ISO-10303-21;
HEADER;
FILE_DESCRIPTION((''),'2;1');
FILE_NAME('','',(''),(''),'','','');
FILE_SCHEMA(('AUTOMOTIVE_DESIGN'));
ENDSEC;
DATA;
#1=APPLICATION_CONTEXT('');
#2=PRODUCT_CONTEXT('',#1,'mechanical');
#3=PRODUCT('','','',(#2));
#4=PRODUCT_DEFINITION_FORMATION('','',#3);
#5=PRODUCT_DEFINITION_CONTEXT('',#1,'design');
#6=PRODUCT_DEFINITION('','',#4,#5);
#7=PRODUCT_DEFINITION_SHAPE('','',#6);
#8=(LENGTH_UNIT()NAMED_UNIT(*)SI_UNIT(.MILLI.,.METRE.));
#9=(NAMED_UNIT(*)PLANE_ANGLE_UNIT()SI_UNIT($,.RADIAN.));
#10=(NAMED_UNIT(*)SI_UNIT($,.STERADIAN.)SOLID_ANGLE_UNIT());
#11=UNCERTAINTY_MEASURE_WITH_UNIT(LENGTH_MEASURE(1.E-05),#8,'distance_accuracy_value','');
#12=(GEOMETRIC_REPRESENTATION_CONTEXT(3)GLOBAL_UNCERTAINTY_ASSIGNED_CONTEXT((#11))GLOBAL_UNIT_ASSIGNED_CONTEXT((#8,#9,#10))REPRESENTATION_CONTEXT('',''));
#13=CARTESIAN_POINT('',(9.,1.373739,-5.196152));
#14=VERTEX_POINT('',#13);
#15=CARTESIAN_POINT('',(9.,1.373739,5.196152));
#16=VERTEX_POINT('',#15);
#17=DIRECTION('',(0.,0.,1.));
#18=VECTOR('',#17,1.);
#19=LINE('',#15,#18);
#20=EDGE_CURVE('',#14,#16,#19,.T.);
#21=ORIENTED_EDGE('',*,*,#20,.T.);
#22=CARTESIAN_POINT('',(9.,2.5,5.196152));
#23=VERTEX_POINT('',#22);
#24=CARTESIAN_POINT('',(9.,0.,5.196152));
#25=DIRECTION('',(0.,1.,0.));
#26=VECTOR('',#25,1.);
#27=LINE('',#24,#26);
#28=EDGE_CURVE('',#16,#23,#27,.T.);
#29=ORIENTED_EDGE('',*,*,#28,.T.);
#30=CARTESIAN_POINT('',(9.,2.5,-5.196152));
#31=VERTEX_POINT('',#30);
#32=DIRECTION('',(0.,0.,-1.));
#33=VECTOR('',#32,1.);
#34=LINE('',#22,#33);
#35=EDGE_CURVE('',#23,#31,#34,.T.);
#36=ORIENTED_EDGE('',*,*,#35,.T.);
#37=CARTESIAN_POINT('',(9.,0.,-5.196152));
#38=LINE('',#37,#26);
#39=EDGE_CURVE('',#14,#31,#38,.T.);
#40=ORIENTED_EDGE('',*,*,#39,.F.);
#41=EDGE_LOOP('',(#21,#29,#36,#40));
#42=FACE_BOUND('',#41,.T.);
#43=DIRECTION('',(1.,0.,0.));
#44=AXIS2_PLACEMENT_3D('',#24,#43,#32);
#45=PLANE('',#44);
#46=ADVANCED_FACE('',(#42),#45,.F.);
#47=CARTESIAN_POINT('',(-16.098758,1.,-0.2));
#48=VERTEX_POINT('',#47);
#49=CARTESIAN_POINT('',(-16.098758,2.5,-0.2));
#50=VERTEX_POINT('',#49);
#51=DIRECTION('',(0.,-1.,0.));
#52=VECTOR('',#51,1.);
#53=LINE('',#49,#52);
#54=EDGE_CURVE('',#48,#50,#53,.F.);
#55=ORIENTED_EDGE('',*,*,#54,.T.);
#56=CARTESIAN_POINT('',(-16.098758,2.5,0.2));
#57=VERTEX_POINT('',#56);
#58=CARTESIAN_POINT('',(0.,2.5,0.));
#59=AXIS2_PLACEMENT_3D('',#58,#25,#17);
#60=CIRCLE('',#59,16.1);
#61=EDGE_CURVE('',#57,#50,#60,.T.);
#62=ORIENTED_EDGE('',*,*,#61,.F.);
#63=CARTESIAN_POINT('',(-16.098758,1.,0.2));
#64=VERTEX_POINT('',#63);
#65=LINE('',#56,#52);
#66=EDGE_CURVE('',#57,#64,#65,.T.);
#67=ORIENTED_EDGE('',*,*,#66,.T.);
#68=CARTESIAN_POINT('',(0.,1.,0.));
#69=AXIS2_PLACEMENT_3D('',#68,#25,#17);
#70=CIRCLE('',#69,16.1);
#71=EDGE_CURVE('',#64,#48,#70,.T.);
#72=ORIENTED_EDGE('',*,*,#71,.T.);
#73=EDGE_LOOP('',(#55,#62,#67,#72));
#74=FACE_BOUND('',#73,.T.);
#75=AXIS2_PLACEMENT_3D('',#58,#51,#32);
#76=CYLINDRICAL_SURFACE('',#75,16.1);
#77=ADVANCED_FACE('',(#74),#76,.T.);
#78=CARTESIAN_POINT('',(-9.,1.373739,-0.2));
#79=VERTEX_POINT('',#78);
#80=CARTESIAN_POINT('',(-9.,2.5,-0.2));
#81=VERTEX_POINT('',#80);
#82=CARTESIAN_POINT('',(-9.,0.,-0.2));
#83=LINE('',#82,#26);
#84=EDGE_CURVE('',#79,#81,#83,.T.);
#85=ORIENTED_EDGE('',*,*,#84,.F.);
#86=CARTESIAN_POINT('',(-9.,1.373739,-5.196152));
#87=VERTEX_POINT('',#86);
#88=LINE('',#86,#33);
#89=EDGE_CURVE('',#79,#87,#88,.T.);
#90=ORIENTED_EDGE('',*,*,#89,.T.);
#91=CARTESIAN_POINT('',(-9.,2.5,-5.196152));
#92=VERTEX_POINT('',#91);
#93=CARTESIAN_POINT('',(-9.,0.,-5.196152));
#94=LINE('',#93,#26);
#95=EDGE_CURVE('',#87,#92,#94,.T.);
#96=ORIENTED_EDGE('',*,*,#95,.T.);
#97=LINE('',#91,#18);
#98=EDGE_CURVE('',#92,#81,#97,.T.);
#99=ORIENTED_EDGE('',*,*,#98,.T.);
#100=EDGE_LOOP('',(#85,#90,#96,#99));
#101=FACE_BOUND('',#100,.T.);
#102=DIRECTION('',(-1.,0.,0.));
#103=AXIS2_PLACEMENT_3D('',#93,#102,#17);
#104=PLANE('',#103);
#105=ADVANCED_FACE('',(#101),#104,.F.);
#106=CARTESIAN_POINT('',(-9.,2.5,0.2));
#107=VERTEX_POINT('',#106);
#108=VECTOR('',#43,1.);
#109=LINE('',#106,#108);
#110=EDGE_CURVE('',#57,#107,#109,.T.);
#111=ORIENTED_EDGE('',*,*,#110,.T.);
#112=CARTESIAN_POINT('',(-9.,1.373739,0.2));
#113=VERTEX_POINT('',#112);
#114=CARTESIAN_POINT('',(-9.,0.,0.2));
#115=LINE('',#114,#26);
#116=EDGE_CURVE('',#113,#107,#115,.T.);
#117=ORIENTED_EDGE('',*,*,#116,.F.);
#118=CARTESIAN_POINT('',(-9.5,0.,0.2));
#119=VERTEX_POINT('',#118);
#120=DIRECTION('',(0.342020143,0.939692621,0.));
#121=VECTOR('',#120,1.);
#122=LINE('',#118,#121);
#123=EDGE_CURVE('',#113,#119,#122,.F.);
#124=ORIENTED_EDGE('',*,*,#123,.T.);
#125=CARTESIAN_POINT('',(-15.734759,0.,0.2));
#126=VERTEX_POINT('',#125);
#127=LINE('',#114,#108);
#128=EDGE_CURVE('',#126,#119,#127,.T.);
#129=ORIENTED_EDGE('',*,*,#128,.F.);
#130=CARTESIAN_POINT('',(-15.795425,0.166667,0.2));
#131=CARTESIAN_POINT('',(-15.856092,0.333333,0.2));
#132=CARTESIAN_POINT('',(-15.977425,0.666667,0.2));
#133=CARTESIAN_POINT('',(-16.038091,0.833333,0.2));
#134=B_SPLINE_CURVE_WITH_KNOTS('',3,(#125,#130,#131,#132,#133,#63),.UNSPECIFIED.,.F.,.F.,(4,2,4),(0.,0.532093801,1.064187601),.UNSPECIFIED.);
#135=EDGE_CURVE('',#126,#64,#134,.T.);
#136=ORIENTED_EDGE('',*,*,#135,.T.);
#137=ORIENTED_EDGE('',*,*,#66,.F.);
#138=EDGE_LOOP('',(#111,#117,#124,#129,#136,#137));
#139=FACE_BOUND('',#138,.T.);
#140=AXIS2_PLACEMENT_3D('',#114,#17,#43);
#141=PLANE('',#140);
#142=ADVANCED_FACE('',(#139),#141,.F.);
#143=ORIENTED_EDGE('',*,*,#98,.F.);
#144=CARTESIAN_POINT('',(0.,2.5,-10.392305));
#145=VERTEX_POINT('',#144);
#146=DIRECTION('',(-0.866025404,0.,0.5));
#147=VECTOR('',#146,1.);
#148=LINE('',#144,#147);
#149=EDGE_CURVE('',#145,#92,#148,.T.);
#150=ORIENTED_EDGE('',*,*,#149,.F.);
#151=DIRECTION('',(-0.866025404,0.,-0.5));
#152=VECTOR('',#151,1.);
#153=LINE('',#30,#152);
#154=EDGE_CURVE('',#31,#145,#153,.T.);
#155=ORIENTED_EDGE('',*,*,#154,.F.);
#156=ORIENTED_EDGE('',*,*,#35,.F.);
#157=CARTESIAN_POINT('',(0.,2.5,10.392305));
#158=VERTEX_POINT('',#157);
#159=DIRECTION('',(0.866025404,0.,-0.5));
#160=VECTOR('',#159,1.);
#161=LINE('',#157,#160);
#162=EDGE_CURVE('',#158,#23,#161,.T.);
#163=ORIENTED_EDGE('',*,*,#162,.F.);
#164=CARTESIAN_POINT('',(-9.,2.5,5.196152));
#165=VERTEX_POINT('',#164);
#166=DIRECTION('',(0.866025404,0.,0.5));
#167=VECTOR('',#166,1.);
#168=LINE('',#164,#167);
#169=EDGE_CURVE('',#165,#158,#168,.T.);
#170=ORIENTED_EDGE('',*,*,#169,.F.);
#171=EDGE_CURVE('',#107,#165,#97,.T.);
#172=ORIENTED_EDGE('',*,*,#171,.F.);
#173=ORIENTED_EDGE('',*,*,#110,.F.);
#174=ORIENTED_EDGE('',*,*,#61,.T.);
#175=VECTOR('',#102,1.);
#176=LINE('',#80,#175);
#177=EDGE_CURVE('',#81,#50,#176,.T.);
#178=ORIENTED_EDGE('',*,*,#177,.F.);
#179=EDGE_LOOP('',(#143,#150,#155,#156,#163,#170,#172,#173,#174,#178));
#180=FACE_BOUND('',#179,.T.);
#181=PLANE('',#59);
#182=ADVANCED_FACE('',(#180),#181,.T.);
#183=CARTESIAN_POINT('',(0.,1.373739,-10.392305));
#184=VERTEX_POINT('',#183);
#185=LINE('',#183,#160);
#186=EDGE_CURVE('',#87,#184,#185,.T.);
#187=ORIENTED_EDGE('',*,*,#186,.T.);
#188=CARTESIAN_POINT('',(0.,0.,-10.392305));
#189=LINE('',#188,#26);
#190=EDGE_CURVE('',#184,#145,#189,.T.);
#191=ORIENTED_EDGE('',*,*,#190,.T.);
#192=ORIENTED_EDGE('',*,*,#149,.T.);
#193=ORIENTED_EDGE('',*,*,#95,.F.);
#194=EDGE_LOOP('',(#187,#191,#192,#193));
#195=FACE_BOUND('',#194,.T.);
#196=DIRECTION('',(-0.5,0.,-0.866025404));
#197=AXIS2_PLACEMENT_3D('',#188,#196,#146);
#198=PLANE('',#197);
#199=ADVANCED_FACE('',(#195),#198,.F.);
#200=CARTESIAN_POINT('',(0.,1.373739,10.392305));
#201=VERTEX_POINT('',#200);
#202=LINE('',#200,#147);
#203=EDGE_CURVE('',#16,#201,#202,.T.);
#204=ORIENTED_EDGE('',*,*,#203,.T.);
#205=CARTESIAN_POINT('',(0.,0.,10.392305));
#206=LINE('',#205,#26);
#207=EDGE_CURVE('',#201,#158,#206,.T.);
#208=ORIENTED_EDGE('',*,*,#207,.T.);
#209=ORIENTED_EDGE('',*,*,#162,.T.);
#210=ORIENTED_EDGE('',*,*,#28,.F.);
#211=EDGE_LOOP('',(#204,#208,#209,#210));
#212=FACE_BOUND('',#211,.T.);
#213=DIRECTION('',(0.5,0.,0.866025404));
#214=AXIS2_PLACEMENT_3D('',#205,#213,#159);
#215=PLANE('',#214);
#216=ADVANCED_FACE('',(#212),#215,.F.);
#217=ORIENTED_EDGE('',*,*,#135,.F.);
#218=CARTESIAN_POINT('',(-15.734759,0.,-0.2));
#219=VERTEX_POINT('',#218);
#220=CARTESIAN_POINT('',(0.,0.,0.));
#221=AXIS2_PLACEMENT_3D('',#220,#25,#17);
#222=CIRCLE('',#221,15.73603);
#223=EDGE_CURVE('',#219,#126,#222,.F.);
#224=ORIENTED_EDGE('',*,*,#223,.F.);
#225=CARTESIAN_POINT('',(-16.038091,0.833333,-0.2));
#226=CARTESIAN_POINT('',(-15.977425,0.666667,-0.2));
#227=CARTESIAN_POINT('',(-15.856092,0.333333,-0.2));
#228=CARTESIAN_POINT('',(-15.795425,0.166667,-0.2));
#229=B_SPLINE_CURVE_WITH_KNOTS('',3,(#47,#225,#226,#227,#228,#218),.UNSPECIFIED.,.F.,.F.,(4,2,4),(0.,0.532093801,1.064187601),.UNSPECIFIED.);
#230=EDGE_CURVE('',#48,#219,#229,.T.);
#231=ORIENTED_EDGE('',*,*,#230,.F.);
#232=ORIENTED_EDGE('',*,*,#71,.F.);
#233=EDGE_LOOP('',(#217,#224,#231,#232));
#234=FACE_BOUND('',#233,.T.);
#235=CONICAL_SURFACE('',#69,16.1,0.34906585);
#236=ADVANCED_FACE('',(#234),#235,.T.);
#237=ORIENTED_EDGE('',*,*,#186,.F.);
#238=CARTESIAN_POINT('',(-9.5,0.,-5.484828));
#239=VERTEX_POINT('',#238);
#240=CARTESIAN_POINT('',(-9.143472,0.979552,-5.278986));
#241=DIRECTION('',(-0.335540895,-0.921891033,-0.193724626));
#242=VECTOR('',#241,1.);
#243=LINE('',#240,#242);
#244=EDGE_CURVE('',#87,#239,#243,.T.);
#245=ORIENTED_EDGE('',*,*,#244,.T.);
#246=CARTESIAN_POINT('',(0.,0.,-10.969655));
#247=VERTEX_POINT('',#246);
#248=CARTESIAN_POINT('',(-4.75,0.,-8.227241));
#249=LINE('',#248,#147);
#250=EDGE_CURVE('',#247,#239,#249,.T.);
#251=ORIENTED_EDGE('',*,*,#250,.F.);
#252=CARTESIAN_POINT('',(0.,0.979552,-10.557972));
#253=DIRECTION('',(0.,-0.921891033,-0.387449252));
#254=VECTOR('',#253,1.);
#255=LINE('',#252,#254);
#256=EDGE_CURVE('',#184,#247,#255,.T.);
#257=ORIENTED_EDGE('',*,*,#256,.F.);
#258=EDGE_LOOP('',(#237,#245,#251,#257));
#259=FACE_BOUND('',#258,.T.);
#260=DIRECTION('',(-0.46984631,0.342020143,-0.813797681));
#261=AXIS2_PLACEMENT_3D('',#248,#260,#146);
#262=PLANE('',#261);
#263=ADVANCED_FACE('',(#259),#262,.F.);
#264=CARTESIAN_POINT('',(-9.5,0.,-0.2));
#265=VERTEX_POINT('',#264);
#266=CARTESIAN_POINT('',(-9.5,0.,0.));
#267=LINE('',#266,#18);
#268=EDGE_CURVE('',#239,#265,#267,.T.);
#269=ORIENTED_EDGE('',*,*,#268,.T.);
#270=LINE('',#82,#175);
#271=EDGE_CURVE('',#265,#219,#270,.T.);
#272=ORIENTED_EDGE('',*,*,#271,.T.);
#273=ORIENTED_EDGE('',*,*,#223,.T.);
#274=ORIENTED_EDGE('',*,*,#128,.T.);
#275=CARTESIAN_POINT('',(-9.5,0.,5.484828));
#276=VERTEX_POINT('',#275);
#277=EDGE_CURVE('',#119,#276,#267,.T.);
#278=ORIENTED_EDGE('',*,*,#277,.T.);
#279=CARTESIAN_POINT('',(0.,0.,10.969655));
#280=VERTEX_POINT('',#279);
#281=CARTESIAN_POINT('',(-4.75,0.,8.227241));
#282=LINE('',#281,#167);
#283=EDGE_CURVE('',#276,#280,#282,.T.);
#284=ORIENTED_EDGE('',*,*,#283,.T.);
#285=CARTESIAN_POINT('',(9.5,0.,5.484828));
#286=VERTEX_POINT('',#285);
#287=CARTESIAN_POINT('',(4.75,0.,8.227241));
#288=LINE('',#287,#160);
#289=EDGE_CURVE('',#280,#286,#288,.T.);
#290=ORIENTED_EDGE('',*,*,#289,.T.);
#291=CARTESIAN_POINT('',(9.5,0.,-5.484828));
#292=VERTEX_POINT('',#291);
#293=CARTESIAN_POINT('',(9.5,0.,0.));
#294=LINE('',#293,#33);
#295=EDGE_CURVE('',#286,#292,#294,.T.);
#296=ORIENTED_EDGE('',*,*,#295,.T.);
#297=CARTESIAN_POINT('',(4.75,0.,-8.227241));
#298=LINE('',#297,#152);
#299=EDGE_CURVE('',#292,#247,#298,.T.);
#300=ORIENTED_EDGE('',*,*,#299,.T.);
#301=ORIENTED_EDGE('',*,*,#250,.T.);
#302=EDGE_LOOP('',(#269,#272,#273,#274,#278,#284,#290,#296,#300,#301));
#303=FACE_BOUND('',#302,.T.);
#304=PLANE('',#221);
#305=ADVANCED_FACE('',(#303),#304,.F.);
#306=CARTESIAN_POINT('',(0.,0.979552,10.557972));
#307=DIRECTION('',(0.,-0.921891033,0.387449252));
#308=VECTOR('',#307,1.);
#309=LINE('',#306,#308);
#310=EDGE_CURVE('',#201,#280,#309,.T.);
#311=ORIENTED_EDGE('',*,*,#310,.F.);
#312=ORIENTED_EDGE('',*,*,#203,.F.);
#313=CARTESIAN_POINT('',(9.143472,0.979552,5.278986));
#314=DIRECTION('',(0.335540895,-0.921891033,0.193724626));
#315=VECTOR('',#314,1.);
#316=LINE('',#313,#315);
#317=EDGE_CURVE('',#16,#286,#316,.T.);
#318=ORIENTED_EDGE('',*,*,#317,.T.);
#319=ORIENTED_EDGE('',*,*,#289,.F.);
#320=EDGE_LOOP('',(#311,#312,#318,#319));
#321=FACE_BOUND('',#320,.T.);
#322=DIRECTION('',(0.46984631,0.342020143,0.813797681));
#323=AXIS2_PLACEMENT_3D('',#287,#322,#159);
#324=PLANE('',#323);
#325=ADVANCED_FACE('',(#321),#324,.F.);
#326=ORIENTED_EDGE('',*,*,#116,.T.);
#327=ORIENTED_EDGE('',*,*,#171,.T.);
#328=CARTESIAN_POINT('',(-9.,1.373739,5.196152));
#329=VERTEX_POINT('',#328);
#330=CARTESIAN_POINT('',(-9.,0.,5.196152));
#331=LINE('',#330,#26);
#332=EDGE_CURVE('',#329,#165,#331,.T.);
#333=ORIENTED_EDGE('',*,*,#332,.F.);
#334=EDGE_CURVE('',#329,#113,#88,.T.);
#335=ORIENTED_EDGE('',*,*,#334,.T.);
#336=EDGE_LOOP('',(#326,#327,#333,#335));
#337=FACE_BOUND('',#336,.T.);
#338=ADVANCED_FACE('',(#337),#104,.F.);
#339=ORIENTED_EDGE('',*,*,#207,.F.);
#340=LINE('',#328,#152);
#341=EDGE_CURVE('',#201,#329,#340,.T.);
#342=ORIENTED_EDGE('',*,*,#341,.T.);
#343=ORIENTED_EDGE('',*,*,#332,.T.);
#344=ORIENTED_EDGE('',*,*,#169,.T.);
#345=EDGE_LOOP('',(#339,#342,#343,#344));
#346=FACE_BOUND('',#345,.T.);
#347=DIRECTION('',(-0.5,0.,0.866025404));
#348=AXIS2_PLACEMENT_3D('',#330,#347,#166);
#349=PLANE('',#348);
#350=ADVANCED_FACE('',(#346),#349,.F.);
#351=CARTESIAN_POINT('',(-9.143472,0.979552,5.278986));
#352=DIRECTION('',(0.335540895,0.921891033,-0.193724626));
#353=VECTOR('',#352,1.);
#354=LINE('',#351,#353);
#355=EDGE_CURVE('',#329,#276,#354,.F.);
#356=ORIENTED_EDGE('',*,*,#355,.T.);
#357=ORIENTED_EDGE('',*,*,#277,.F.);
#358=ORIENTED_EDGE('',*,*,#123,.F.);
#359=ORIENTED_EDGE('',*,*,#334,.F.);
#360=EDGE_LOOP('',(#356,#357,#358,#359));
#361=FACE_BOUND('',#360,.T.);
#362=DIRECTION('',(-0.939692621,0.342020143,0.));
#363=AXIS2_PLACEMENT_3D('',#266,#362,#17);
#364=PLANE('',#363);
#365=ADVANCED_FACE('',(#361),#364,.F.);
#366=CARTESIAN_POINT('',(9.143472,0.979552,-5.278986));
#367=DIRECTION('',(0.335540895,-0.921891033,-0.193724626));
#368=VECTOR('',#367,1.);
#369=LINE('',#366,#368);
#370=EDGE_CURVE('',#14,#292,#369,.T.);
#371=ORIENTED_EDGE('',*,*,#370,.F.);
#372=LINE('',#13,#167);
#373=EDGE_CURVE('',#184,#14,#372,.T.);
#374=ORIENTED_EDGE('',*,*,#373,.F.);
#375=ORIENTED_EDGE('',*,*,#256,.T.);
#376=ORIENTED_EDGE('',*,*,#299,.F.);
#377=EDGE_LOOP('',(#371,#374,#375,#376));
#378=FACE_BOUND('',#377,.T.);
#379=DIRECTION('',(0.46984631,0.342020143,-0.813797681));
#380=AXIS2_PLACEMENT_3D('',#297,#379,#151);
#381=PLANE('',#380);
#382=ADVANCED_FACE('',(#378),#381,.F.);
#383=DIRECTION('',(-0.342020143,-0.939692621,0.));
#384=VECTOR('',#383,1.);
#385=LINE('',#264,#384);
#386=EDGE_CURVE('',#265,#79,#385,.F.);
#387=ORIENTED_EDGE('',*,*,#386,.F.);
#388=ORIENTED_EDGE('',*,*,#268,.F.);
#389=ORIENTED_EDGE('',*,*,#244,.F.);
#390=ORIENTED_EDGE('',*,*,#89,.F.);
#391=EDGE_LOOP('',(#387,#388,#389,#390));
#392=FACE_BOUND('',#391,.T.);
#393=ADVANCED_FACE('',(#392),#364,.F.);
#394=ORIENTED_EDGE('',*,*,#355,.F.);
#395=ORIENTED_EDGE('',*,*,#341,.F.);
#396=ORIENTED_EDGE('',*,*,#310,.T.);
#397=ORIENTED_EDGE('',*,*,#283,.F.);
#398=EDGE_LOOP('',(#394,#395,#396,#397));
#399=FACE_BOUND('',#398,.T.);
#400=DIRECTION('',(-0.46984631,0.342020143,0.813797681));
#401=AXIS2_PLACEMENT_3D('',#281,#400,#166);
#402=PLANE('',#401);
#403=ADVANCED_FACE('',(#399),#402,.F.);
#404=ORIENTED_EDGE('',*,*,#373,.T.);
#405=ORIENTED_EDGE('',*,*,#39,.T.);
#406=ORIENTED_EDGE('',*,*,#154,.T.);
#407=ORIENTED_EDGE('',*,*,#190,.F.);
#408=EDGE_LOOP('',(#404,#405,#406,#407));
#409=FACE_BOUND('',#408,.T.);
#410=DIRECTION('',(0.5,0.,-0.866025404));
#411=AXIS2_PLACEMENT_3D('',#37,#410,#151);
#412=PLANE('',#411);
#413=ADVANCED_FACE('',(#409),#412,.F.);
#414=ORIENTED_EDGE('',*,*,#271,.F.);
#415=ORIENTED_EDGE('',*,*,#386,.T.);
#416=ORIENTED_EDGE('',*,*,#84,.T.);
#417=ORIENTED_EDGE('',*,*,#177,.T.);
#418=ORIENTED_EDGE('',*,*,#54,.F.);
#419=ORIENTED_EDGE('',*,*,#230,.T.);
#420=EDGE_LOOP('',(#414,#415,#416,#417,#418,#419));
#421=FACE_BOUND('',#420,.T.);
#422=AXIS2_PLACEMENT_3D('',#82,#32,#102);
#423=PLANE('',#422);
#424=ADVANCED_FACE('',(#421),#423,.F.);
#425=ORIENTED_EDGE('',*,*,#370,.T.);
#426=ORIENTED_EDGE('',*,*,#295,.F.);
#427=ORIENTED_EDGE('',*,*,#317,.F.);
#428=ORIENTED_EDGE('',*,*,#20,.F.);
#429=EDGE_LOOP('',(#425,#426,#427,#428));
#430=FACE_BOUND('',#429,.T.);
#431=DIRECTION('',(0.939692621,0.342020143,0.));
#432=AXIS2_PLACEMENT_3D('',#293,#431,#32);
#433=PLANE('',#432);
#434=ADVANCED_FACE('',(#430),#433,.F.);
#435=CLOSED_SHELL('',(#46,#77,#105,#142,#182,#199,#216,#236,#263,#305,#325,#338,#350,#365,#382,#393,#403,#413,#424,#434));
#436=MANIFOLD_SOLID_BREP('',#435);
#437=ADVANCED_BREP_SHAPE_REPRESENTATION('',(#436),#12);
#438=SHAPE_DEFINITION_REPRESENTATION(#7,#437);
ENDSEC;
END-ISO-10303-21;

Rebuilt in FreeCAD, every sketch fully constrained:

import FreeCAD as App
import Part
import Sketcher
from FreeCAD import Vector
Q = App.Units.Quantity


def edges_at(feature, points):
    """Names of the edges that pass closest to the given points."""
    edges = feature.Shape.Edges
    near = lambda p: min(range(len(edges)), key=lambda i: edges[i].distToShape(Part.Vertex(*p))[0])
    return sorted({f"Edge{near(p) + 1}" for p in points})


def add_polygon(sketch, points):
    """Adds a closed chain of lines whose ends are joined by coincident constraints."""
    first, n = sketch.GeometryCount, len(points)
    for a, b in zip(points, points[1:] + points[:1]):
        sketch.addGeometry(Part.LineSegment(App.Vector(*a, 0), App.Vector(*b, 0)), False)
    for i in range(n):
        sketch.addConstraint(Sketcher.Constraint("Coincident", first + i, 2, first + (i + 1) % n, 1))

doc = App.newDocument("Part")
body = doc.addObject("PartDesign::Body", "Body")

sketch1 = body.newObject("Sketcher::SketchObject", "Sketch")
sketch1.AttachmentSupport = (doc.getObject("XZ_Plane"), [""])
sketch1.MapMode = "FlatFace"
sketch1.addGeometry(Part.Circle(Vector(0, 0, 0), Vector(0, 0, 1), 16), False)
sketch1.addConstraint(Sketcher.Constraint("Coincident", 0, 3, -1, 1))
sketch1.addConstraint(Sketcher.Constraint("Diameter", 0, Q("32.2 mm")))
pad1 = body.newObject("PartDesign::Pad", "Pad")
pad1.Profile = sketch1
pad1.Length = 2.5
pad1.Reversed = True

sketch2 = body.newObject("Sketcher::SketchObject", "Sketch001")
sketch2.AttachmentSupport = (doc.getObject("XZ_Plane"), [""])
sketch2.MapMode = "FlatFace"
sketch2.AttachmentOffset = App.Placement(Vector(0, 0, -2.5), App.Rotation())
add_polygon(sketch2, [(0, -10), (-9, -5), (-9, 5), (0, 10), (9, 5), (9, -5)])
sketch2.addConstraint(Sketcher.Constraint("Vertical", 1))
sketch2.addConstraint(Sketcher.Constraint("Vertical", 4))
sketch2.addConstraint(Sketcher.Constraint("Symmetric", 0, 2, 3, 2, -1, 1))
sketch2.addConstraint(Sketcher.Constraint("Symmetric", 2, 2, 5, 2, -1, 1))
sketch2.addConstraint(Sketcher.Constraint("PointOnObject", 2, 2, -2))
sketch2.addConstraint(Sketcher.Constraint("Parallel", 2, 5))
sketch2.addConstraint(Sketcher.Constraint("Horizontal", 1, 2, 3, 2))
sketch2.addConstraint(Sketcher.Constraint("Angle", 0, Q("150 deg")))
sketch2.addConstraint(Sketcher.Constraint("DistanceX", 0, 2, -1, 1, Q("9 mm")))
sketch2.addConstraint(Sketcher.Constraint("DistanceY", 1, 1, 1, 2, Q("10.392305 mm")))
pocket1 = body.newObject("PartDesign::Pocket", "Pocket")
pocket1.Profile = sketch2
pocket1.Type = "ThroughAll"
pocket1.Reversed = True

sketch3 = body.newObject("Sketcher::SketchObject", "Sketch002")
sketch3.AttachmentSupport = (doc.getObject("XZ_Plane"), [""])
sketch3.MapMode = "FlatFace"
sketch3.AttachmentOffset = App.Placement(Vector(0, 0, -2.5), App.Rotation())
add_polygon(sketch3, [(-16.1, -0.2), (-16.1, 0.2), (-9, 0.2), (-9, -0.2)])
sketch3.addConstraint(Sketcher.Constraint("Vertical", 0))
sketch3.addConstraint(Sketcher.Constraint("Horizontal", 1))
sketch3.addConstraint(Sketcher.Constraint("Vertical", 2))
sketch3.addConstraint(Sketcher.Constraint("Horizontal", 3))
sketch3.addConstraint(Sketcher.Constraint("DistanceX", 1, 1, 1, 2, Q("7.1 mm")))
sketch3.addConstraint(Sketcher.Constraint("DistanceY", 0, 1, 0, 2, Q("0.4 mm")))
sketch3.addConstraint(Sketcher.Constraint("DistanceX", 1, 2, -1, 1, Q("9 mm")))
sketch3.addConstraint(Sketcher.Constraint("DistanceY", -1, 1, 0, 2, Q("0.2 mm")))
pocket2 = body.newObject("PartDesign::Pocket", "Pocket001")
pocket2.Profile = sketch3
pocket2.Type = "ThroughAll"
pocket2.Reversed = True
doc.recompute()

chamfer = body.newObject("PartDesign::Chamfer", "Chamfer")
chamfer.Base = (pocket2, edges_at(pocket2, [(11.455, 0, -11.313)]))
chamfer.ChamferType = "Two distances"
chamfer.Size = 1
chamfer.Size2 = 0.36397
chamfer.FlipDirection = True
doc.recompute()

chamfer2 = body.newObject("PartDesign::Chamfer", "Chamfer001")
chamfer2.Base = (chamfer, edges_at(chamfer, [
    (4.5, 0, -7.794),
    (9, 0, 0),
    (4.5, 0, 7.794),
    (-4.5, 0, 7.794),
    (-9, 0, -2.698),
    (-4.5, 0, -7.794),
    (-9, 0, 2.698),
]))
chamfer2.ChamferType = "Two distances"
chamfer2.Size = 0.5
chamfer2.Size2 = 1.373739

doc.recompute()
